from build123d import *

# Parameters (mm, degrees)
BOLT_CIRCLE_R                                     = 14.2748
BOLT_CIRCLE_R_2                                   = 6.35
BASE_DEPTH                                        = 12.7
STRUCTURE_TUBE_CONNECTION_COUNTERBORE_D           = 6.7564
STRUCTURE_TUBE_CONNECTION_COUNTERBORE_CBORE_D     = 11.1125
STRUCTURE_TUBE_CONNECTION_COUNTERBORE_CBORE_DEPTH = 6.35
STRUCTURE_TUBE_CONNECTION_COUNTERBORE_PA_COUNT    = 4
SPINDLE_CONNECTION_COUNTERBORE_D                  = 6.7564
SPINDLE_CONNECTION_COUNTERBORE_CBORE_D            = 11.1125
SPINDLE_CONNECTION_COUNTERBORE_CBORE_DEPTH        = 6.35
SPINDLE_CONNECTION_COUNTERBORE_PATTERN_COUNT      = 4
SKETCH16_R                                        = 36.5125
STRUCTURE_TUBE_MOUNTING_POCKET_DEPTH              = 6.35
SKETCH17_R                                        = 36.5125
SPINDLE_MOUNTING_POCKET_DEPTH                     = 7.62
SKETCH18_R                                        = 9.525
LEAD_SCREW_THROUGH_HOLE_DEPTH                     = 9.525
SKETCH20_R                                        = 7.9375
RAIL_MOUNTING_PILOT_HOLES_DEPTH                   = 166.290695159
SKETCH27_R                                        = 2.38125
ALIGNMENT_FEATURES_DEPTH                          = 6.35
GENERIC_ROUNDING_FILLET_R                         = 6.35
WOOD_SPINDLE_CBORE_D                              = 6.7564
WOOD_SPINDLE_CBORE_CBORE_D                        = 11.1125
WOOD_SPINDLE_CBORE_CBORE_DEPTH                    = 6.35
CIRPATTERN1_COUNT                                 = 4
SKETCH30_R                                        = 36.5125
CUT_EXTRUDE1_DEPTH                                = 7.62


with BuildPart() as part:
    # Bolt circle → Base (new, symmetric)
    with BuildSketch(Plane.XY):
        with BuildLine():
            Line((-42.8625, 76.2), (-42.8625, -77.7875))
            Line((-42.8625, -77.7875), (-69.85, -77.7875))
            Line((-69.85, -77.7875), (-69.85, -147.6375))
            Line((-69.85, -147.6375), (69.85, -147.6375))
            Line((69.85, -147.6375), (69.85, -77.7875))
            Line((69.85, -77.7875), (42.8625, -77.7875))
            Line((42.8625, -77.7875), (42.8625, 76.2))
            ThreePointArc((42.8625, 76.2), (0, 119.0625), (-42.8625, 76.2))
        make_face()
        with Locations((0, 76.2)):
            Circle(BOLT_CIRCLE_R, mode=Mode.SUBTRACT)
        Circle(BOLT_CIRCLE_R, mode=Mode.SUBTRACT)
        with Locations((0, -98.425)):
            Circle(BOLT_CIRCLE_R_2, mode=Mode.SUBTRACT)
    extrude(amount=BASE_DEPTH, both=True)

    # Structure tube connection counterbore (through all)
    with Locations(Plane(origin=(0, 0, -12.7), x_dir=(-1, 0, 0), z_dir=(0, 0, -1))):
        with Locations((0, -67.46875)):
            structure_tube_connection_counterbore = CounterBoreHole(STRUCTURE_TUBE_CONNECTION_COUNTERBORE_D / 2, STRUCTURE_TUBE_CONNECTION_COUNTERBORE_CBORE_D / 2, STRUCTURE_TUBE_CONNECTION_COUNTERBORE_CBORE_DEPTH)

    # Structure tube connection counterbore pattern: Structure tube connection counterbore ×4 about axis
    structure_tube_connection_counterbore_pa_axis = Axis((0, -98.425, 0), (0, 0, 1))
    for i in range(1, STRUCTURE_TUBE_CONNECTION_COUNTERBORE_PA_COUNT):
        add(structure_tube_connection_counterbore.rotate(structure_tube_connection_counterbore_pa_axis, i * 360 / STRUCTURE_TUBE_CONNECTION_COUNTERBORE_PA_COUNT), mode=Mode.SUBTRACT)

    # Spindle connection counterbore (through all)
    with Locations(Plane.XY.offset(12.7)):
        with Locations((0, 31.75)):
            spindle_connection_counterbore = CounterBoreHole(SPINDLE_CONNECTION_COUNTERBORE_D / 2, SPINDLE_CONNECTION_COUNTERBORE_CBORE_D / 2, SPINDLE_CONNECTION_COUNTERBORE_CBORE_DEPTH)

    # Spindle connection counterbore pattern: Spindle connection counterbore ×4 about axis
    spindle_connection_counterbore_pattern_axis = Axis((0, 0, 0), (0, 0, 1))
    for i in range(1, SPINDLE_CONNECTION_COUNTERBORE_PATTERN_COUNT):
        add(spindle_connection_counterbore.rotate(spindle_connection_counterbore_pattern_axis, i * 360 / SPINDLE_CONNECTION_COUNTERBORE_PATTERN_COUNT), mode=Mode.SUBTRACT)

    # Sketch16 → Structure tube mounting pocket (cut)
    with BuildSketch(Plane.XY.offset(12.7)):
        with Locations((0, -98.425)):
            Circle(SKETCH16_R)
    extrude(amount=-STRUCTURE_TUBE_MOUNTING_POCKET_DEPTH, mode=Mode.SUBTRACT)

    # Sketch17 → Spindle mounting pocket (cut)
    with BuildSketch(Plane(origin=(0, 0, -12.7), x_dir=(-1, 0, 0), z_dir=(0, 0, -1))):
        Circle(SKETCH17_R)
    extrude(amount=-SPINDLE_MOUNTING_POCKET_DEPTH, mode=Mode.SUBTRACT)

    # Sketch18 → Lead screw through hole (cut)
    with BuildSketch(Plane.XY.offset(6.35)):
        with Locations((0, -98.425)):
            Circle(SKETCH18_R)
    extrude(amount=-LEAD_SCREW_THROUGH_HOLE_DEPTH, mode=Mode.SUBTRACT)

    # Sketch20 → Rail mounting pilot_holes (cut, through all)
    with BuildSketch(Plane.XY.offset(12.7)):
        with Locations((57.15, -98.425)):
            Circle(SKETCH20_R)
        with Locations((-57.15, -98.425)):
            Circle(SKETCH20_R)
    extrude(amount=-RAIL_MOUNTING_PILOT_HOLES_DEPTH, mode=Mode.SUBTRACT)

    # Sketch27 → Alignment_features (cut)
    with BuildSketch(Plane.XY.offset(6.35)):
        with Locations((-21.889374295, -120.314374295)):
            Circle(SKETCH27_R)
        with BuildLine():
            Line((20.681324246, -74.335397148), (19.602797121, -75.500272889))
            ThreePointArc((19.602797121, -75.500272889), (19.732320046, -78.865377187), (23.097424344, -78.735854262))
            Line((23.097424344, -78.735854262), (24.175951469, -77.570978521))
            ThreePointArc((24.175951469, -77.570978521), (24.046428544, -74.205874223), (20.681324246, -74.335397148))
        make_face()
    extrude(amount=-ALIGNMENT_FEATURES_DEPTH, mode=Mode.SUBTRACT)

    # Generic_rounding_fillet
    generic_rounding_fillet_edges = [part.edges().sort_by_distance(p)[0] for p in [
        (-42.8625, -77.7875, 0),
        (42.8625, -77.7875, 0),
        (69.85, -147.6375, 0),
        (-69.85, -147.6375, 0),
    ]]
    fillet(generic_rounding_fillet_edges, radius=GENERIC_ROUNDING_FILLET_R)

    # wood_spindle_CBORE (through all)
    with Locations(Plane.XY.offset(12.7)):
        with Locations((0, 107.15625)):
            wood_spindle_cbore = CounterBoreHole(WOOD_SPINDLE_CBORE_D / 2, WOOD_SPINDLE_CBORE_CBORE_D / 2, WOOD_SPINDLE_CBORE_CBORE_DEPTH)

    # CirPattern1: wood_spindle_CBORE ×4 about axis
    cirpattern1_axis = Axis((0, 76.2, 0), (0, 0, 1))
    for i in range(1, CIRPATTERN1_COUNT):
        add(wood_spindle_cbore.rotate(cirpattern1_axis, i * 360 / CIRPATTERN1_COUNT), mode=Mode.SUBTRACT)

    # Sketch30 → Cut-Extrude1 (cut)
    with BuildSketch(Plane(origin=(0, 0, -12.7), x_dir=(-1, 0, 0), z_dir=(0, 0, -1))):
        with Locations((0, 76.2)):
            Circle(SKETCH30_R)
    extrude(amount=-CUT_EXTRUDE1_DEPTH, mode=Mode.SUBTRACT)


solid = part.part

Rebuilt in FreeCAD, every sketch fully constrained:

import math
import FreeCAD as App
import Part
import Sketcher
Q = App.Units.Quantity


def edges_at(feature, points):
    """Names of the edges that pass closest to the given points."""
    edges = feature.Shape.Edges
    near = lambda p: min(range(len(edges)), key=lambda i: edges[i].distToShape(Part.Vertex(*p))[0])
    return sorted({f"Edge{near(p) + 1}" for p in points})

doc = App.newDocument("Part")
body = doc.addObject("PartDesign::Body", "Body")

# Sketch on XY plane
sketch1 = doc.addObject("Sketcher::SketchObject", "Sketch")
body.addObject(sketch1)
sketch1.AttachmentSupport = (doc.XY_Plane, [""])
sketch1.MapMode = "FlatFace"
sketch1.addGeometry([
    Part.LineSegment(App.Vector(-43, 76, 0), App.Vector(-43, -78, 0)),  # 0
    Part.LineSegment(App.Vector(-43, -78, 0), App.Vector(-70, -78, 0)),  # 1
    Part.LineSegment(App.Vector(-70, -78, 0), App.Vector(-70, -148, 0)),  # 2
    Part.LineSegment(App.Vector(-70, -148, 0), App.Vector(70, -148, 0)),  # 3
    Part.LineSegment(App.Vector(70, -148, 0), App.Vector(70, -78, 0)),  # 4
    Part.LineSegment(App.Vector(70, -78, 0), App.Vector(43, -78, 0)),  # 5
    Part.LineSegment(App.Vector(43, -78, 0), App.Vector(43, 76, 0)),  # 6
    Part.ArcOfCircle(Part.Circle(App.Vector(0, 76, 0), App.Vector(0, 0, 1), 43), math.radians(0), math.radians(180)),  # 7
    Part.Circle(App.Vector(0, -98, 0), App.Vector(0, 0, 1), 6),  # 8
    Part.Circle(App.Vector(0, 0, 0), App.Vector(0, 0, 1), 14),  # 9
    Part.Circle(App.Vector(0, 76, 0), App.Vector(0, 0, 1), 14),  # 10
], False)
sketch1.addConstraint([
    Sketcher.Constraint("Coincident", 0, 2, 1, 1),
    Sketcher.Constraint("Coincident", 1, 2, 2, 1),
    Sketcher.Constraint("Coincident", 2, 2, 3, 1),
    Sketcher.Constraint("Coincident", 3, 2, 4, 1),
    Sketcher.Constraint("Coincident", 4, 2, 5, 1),
    Sketcher.Constraint("Coincident", 5, 2, 6, 1),
    Sketcher.Constraint("Tangent", 6, 2, 7, 1),
    Sketcher.Constraint("Tangent", 7, 2, 0, 1),
    Sketcher.Constraint("Vertical", 0),
    Sketcher.Constraint("Horizontal", 1),
    Sketcher.Constraint("Vertical", 2),
    Sketcher.Constraint("Horizontal", 3),
    Sketcher.Constraint("Vertical", 4),
    Sketcher.Constraint("Horizontal", 5),
    Sketcher.Constraint("Vertical", 6),
    Sketcher.Constraint("Coincident", 9, 3, -1, 1),
    Sketcher.Constraint("Coincident", 10, 3, 7, 3),
    Sketcher.Constraint("Equal", 9, 10),
    Sketcher.Constraint("Symmetric", 1, 2, 4, 2, -2),
    Sketcher.Constraint("PointOnObject", 7, 3, -2),
    Sketcher.Constraint("PointOnObject", 8, 3, -2),
    Sketcher.Constraint("Diameter", 8, Q("0.5 in")),
    Sketcher.Constraint("Diameter", 9, Q("1.124 in")),
    Sketcher.Constraint("DistanceX", 3, 1, 3, 2, Q("5.5 in")),
    Sketcher.Constraint("DistanceY", -1, 1, 7, 3, Q("3 in")),
    Sketcher.Constraint("Radius", 7, Q("1.6875 in")),
    Sketcher.Constraint("DistanceY", 2, 2, 2, 1, Q("2.75 in")),
    Sketcher.Constraint("DistanceY", 0, 2, 0, 1, Q("6.0625 in")),
    Sketcher.Constraint("DistanceY", 8, 3, -1, 1, Q("3.875 in")),
])
pad1 = doc.addObject("PartDesign::Pad", "Pad")
body.addObject(pad1)
pad1.Profile = sketch1
pad1.Length = Q("1 in")
pad1.Midplane = True

# Sketch on XY plane
sketch2 = doc.addObject("Sketcher::SketchObject", "Sketch001")
body.addObject(sketch2)
sketch2.AttachmentSupport = (doc.XY_Plane, [""])
sketch2.MapMode = "FlatFace"
sketch2.AttachmentOffset = App.Placement(App.Vector(0, 0, -0.5 * 25.4), App.Rotation())
sketch2.addGeometry(Part.Circle(App.Vector(0, -67.5, 0), App.Vector(0, 0, 1), 3.4), False)
sketch2.addConstraint([
    Sketcher.Constraint("PointOnObject", 0, 3, -2),
    Sketcher.Constraint("Diameter", 0, Q("0.266 in")),
    Sketcher.Constraint("DistanceY", 0, 3, -1, 1, Q("2.65625 in")),
])
doc.recompute()
hole = doc.addObject("PartDesign::Hole", "Hole")
body.addObject(hole)
hole.Profile = sketch2
hole.ThreadType = "None"
hole.Diameter = Q("0.266 in")
hole.DepthType = "ThroughAll"
hole.HoleCutType = "Counterbore"
hole.HoleCutDiameter = Q("0.4375 in")
hole.HoleCutDepth = Q("0.25 in")
hole.Reversed = True
doc.recompute()

datumline = doc.addObject("PartDesign::Line", "DatumLine")
body.addObject(datumline)
datumline.Placement = App.Placement(App.Vector(0, -98.425, 0), App.Rotation(App.Vector(0, 0, 1), App.Vector(0, 0, 1)))
polarpattern = doc.addObject("PartDesign::PolarPattern", "PolarPattern")
body.addObject(polarpattern)
polarpattern.Originals = [hole]
polarpattern.Axis = (datumline, [""])
polarpattern.Angle = 360
polarpattern.Occurrences = 4
body.Tip = polarpattern

# Sketch on XY plane
sketch3 = doc.addObject("Sketcher::SketchObject", "Sketch002")
body.addObject(sketch3)
sketch3.AttachmentSupport = (doc.XY_Plane, [""])
sketch3.MapMode = "FlatFace"
sketch3.AttachmentOffset = App.Placement(App.Vector(0, 0, 0.5 * 25.4), App.Rotation())
sketch3.addGeometry(Part.Circle(App.Vector(0, 31.8, 0), App.Vector(0, 0, 1), 3.4), False)
sketch3.addConstraint([
    Sketcher.Constraint("PointOnObject", 0, 3, -2),
    Sketcher.Constraint("Diameter", 0, Q("0.266 in")),
    Sketcher.Constraint("DistanceY", -1, 1, 0, 3, Q("1.25 in")),
])
doc.recompute()
hole2 = doc.addObject("PartDesign::Hole", "Hole001")
body.addObject(hole2)
hole2.Profile = sketch3
hole2.ThreadType = "None"
hole2.Diameter = Q("0.266 in")
hole2.DepthType = "ThroughAll"
hole2.HoleCutType = "Counterbore"
hole2.HoleCutDiameter = Q("0.4375 in")
hole2.HoleCutDepth = Q("0.25 in")
doc.recompute()

polarpattern2 = doc.addObject("PartDesign::PolarPattern", "PolarPattern001")
body.addObject(polarpattern2)
polarpattern2.Originals = [hole2]
polarpattern2.Axis = (doc.Z_Axis, [""])
polarpattern2.Angle = 360
polarpattern2.Occurrences = 4
body.Tip = polarpattern2

# Sketch on XY plane
sketch4 = doc.addObject("Sketcher::SketchObject", "Sketch003")
body.addObject(sketch4)
sketch4.AttachmentSupport = (doc.XY_Plane, [""])
sketch4.MapMode = "FlatFace"
sketch4.AttachmentOffset = App.Placement(App.Vector(0, 0, 0.5 * 25.4), App.Rotation())
sketch4.addGeometry(Part.Circle(App.Vector(0, -98, 0), App.Vector(0, 0, 1), 37), False)
sketch4.addConstraint([
    Sketcher.Constraint("PointOnObject", 0, 3, -2),
    Sketcher.Constraint("Diameter", 0, Q("2.875 in")),
    Sketcher.Constraint("DistanceY", 0, 3, -1, 1, Q("3.875 in")),
])
pocket1 = doc.addObject("PartDesign::Pocket", "Pocket")
body.addObject(pocket1)
pocket1.Profile = sketch4
pocket1.Length = Q("0.25 in")

# Sketch on XY plane
sketch5 = doc.addObject("Sketcher::SketchObject", "Sketch004")
body.addObject(sketch5)
sketch5.AttachmentSupport = (doc.XY_Plane, [""])
sketch5.MapMode = "FlatFace"
sketch5.AttachmentOffset = App.Placement(App.Vector(0, 0, -0.5 * 25.4), App.Rotation())
sketch5.addGeometry(Part.Circle(App.Vector(0, 0, 0), App.Vector(0, 0, 1), 37), False)
sketch5.addConstraint([
    Sketcher.Constraint("Coincident", 0, 3, -1, 1),
    Sketcher.Constraint("Diameter", 0, Q("2.875 in")),
])
pocket2 = doc.addObject("PartDesign::Pocket", "Pocket001")
body.addObject(pocket2)
pocket2.Profile = sketch5
pocket2.Length = Q("0.3 in")
pocket2.Reversed = True

# Sketch on XY plane
sketch6 = doc.addObject("Sketcher::SketchObject", "Sketch005")
body.addObject(sketch6)
sketch6.AttachmentSupport = (doc.XY_Plane, [""])
sketch6.MapMode = "FlatFace"
sketch6.AttachmentOffset = App.Placement(App.Vector(0, 0, 0.25 * 25.4), App.Rotation())
sketch6.addGeometry(Part.Circle(App.Vector(0, -98, 0), App.Vector(0, 0, 1), 10), False)
sketch6.addConstraint([
    Sketcher.Constraint("PointOnObject", 0, 3, -2),
    Sketcher.Constraint("Diameter", 0, Q("0.75 in")),
    Sketcher.Constraint("DistanceY", 0, 3, -1, 1, Q("3.875 in")),
])
pocket3 = doc.addObject("PartDesign::Pocket", "Pocket002")
body.addObject(pocket3)
pocket3.Profile = sketch6
pocket3.Length = Q("0.375 in")

# Sketch on XY plane
sketch7 = doc.addObject("Sketcher::SketchObject", "Sketch006")
body.addObject(sketch7)
sketch7.AttachmentSupport = (doc.XY_Plane, [""])
sketch7.MapMode = "FlatFace"
sketch7.AttachmentOffset = App.Placement(App.Vector(0, 0, 0.5 * 25.4), App.Rotation())
sketch7.addGeometry([
    Part.Circle(App.Vector(57, -98, 0), App.Vector(0, 0, 1), 8),
    Part.Circle(App.Vector(-57, -98, 0), App.Vector(0, 0, 1), 8),
], False)
sketch7.addConstraint([
    Sketcher.Constraint("Equal", 0, 1),
    Sketcher.Constraint("Symmetric", 0, 3, 1, 3, -2),
    Sketcher.Constraint("Diameter", 0, Q("0.625 in")),
    Sketcher.Constraint("DistanceX", 1, 3, 0, 3, Q("4.5 in")),
    Sketcher.Constraint("DistanceY", 0, 3, -1, 1, Q("3.875 in")),
])
pocket4 = doc.addObject("PartDesign::Pocket", "Pocket003")
body.addObject(pocket4)
pocket4.Profile = sketch7
pocket4.Type = "ThroughAll"

# Sketch on XY plane
sketch8 = doc.addObject("Sketcher::SketchObject", "Sketch007")
body.addObject(sketch8)
sketch8.AttachmentSupport = (doc.XY_Plane, [""])
sketch8.MapMode = "FlatFace"
sketch8.AttachmentOffset = App.Placement(App.Vector(0, 0, 0.25 * 25.4), App.Rotation())
sketch8.addGeometry([
    Part.Circle(App.Vector(-21.9, -120.3, 0), App.Vector(0, 0, 1), 2.4),  # 0
    Part.LineSegment(App.Vector(20.7, -74.3, 0), App.Vector(19.6, -75.5, 0)),  # 1
    Part.ArcOfCircle(Part.Circle(App.Vector(21.4, -77.1, 0), App.Vector(0, 0, 1), 2.4), math.radians(137), math.radians(317)),  # 2
    Part.LineSegment(App.Vector(23.1, -78.7, 0), App.Vector(24.2, -77.6, 0)),  # 3
    Part.ArcOfCircle(Part.Circle(App.Vector(22.4, -76, 0), App.Vector(0, 0, 1), 2.4), math.radians(-43), math.radians(137)),  # 4
], False)
sketch8.addConstraint([
    Sketcher.Constraint("Tangent", 1, 2, 2, 1),
    Sketcher.Constraint("Tangent", 2, 2, 3, 1),
    Sketcher.Constraint("Tangent", 3, 2, 4, 1),
    Sketcher.Constraint("Tangent", 4, 2, 1, 1),
    Sketcher.Constraint("Equal", 0, 2),
    Sketcher.Constraint("Equal", 2, 4),
    Sketcher.Constraint("Diameter", 0, Q("0.1875 in")),
    Sketcher.Constraint("Distance", 1, Q("0.0625 in")),
    Sketcher.Constraint("DistanceY", 0, 3, 1, 2, Q("44.814101 mm")),
    Sketcher.Constraint("DistanceX", 0, 3, 2, 2, Q("44.986799 mm")),
    Sketcher.Constraint("DistanceX", 4, 2, 2, 2, Q("2.4161 mm")),
    Sketcher.Constraint("DistanceX", -1, 1, 2, 3, Q("21.350111 mm")),
    Sketcher.Constraint("DistanceY", 3, 2, -1, 1, Q("77.570979 mm")),
])
pocket5 = doc.addObject("PartDesign::Pocket", "Pocket004")
body.addObject(pocket5)
pocket5.Profile = sketch8
pocket5.Length = Q("0.25 in")
doc.recompute()

fillet = doc.addObject("PartDesign::Fillet", "Fillet")
body.addObject(fillet)
fillet.Base = (pocket5, edges_at(pocket5, [
    (-42.862, -77.787, 0),
    (42.862, -77.787, 0),
    (69.85, -147.637, 0),
    (-69.85, -147.637, 0),
]))
fillet.Radius = Q("0.25 in")

# Sketch on XY plane
sketch9 = doc.addObject("Sketcher::SketchObject", "Sketch008")
body.addObject(sketch9)
sketch9.AttachmentSupport = (doc.XY_Plane, [""])
sketch9.MapMode = "FlatFace"
sketch9.AttachmentOffset = App.Placement(App.Vector(0, 0, 0.5 * 25.4), App.Rotation())
sketch9.addGeometry(Part.Circle(App.Vector(0, 107.2, 0), App.Vector(0, 0, 1), 3.4), False)
sketch9.addConstraint([
    Sketcher.Constraint("PointOnObject", 0, 3, -2),
    Sketcher.Constraint("Diameter", 0, Q("0.266 in")),
    Sketcher.Constraint("DistanceY", -1, 1, 0, 3, Q("4.21875 in")),
])
doc.recompute()
hole3 = doc.addObject("PartDesign::Hole", "Hole002")
body.addObject(hole3)
hole3.Profile = sketch9
hole3.ThreadType = "None"
hole3.Diameter = Q("0.266 in")
hole3.DepthType = "ThroughAll"
hole3.HoleCutType = "Counterbore"
hole3.HoleCutDiameter = Q("0.4375 in")
hole3.HoleCutDepth = Q("0.25 in")
doc.recompute()

datumline2 = doc.addObject("PartDesign::Line", "DatumLine001")
body.addObject(datumline2)
datumline2.Placement = App.Placement(App.Vector(0, 76.2, 0), App.Rotation(App.Vector(0, 0, 1), App.Vector(0, 0, 1)))
polarpattern3 = doc.addObject("PartDesign::PolarPattern", "PolarPattern002")
body.addObject(polarpattern3)
polarpattern3.Originals = [hole3]
polarpattern3.Axis = (datumline2, [""])
polarpattern3.Angle = 360
polarpattern3.Occurrences = 4
body.Tip = polarpattern3

# Sketch on XY plane
sketch10 = doc.addObject("Sketcher::SketchObject", "Sketch009")
body.addObject(sketch10)
sketch10.AttachmentSupport = (doc.XY_Plane, [""])
sketch10.MapMode = "FlatFace"
sketch10.AttachmentOffset = App.Placement(App.Vector(0, 0, -0.5 * 25.4), App.Rotation())
sketch10.addGeometry(Part.Circle(App.Vector(0, 76, 0), App.Vector(0, 0, 1), 37), False)
sketch10.addConstraint([
    Sketcher.Constraint("PointOnObject", 0, 3, -2),
    Sketcher.Constraint("Diameter", 0, Q("2.875 in")),
    Sketcher.Constraint("DistanceY", -1, 1, 0, 3, Q("3 in")),
])
pocket6 = doc.addObject("PartDesign::Pocket", "Pocket005")
body.addObject(pocket6)
pocket6.Profile = sketch10
pocket6.Length = Q("0.3 in")
pocket6.Reversed = True

doc.recompute()
